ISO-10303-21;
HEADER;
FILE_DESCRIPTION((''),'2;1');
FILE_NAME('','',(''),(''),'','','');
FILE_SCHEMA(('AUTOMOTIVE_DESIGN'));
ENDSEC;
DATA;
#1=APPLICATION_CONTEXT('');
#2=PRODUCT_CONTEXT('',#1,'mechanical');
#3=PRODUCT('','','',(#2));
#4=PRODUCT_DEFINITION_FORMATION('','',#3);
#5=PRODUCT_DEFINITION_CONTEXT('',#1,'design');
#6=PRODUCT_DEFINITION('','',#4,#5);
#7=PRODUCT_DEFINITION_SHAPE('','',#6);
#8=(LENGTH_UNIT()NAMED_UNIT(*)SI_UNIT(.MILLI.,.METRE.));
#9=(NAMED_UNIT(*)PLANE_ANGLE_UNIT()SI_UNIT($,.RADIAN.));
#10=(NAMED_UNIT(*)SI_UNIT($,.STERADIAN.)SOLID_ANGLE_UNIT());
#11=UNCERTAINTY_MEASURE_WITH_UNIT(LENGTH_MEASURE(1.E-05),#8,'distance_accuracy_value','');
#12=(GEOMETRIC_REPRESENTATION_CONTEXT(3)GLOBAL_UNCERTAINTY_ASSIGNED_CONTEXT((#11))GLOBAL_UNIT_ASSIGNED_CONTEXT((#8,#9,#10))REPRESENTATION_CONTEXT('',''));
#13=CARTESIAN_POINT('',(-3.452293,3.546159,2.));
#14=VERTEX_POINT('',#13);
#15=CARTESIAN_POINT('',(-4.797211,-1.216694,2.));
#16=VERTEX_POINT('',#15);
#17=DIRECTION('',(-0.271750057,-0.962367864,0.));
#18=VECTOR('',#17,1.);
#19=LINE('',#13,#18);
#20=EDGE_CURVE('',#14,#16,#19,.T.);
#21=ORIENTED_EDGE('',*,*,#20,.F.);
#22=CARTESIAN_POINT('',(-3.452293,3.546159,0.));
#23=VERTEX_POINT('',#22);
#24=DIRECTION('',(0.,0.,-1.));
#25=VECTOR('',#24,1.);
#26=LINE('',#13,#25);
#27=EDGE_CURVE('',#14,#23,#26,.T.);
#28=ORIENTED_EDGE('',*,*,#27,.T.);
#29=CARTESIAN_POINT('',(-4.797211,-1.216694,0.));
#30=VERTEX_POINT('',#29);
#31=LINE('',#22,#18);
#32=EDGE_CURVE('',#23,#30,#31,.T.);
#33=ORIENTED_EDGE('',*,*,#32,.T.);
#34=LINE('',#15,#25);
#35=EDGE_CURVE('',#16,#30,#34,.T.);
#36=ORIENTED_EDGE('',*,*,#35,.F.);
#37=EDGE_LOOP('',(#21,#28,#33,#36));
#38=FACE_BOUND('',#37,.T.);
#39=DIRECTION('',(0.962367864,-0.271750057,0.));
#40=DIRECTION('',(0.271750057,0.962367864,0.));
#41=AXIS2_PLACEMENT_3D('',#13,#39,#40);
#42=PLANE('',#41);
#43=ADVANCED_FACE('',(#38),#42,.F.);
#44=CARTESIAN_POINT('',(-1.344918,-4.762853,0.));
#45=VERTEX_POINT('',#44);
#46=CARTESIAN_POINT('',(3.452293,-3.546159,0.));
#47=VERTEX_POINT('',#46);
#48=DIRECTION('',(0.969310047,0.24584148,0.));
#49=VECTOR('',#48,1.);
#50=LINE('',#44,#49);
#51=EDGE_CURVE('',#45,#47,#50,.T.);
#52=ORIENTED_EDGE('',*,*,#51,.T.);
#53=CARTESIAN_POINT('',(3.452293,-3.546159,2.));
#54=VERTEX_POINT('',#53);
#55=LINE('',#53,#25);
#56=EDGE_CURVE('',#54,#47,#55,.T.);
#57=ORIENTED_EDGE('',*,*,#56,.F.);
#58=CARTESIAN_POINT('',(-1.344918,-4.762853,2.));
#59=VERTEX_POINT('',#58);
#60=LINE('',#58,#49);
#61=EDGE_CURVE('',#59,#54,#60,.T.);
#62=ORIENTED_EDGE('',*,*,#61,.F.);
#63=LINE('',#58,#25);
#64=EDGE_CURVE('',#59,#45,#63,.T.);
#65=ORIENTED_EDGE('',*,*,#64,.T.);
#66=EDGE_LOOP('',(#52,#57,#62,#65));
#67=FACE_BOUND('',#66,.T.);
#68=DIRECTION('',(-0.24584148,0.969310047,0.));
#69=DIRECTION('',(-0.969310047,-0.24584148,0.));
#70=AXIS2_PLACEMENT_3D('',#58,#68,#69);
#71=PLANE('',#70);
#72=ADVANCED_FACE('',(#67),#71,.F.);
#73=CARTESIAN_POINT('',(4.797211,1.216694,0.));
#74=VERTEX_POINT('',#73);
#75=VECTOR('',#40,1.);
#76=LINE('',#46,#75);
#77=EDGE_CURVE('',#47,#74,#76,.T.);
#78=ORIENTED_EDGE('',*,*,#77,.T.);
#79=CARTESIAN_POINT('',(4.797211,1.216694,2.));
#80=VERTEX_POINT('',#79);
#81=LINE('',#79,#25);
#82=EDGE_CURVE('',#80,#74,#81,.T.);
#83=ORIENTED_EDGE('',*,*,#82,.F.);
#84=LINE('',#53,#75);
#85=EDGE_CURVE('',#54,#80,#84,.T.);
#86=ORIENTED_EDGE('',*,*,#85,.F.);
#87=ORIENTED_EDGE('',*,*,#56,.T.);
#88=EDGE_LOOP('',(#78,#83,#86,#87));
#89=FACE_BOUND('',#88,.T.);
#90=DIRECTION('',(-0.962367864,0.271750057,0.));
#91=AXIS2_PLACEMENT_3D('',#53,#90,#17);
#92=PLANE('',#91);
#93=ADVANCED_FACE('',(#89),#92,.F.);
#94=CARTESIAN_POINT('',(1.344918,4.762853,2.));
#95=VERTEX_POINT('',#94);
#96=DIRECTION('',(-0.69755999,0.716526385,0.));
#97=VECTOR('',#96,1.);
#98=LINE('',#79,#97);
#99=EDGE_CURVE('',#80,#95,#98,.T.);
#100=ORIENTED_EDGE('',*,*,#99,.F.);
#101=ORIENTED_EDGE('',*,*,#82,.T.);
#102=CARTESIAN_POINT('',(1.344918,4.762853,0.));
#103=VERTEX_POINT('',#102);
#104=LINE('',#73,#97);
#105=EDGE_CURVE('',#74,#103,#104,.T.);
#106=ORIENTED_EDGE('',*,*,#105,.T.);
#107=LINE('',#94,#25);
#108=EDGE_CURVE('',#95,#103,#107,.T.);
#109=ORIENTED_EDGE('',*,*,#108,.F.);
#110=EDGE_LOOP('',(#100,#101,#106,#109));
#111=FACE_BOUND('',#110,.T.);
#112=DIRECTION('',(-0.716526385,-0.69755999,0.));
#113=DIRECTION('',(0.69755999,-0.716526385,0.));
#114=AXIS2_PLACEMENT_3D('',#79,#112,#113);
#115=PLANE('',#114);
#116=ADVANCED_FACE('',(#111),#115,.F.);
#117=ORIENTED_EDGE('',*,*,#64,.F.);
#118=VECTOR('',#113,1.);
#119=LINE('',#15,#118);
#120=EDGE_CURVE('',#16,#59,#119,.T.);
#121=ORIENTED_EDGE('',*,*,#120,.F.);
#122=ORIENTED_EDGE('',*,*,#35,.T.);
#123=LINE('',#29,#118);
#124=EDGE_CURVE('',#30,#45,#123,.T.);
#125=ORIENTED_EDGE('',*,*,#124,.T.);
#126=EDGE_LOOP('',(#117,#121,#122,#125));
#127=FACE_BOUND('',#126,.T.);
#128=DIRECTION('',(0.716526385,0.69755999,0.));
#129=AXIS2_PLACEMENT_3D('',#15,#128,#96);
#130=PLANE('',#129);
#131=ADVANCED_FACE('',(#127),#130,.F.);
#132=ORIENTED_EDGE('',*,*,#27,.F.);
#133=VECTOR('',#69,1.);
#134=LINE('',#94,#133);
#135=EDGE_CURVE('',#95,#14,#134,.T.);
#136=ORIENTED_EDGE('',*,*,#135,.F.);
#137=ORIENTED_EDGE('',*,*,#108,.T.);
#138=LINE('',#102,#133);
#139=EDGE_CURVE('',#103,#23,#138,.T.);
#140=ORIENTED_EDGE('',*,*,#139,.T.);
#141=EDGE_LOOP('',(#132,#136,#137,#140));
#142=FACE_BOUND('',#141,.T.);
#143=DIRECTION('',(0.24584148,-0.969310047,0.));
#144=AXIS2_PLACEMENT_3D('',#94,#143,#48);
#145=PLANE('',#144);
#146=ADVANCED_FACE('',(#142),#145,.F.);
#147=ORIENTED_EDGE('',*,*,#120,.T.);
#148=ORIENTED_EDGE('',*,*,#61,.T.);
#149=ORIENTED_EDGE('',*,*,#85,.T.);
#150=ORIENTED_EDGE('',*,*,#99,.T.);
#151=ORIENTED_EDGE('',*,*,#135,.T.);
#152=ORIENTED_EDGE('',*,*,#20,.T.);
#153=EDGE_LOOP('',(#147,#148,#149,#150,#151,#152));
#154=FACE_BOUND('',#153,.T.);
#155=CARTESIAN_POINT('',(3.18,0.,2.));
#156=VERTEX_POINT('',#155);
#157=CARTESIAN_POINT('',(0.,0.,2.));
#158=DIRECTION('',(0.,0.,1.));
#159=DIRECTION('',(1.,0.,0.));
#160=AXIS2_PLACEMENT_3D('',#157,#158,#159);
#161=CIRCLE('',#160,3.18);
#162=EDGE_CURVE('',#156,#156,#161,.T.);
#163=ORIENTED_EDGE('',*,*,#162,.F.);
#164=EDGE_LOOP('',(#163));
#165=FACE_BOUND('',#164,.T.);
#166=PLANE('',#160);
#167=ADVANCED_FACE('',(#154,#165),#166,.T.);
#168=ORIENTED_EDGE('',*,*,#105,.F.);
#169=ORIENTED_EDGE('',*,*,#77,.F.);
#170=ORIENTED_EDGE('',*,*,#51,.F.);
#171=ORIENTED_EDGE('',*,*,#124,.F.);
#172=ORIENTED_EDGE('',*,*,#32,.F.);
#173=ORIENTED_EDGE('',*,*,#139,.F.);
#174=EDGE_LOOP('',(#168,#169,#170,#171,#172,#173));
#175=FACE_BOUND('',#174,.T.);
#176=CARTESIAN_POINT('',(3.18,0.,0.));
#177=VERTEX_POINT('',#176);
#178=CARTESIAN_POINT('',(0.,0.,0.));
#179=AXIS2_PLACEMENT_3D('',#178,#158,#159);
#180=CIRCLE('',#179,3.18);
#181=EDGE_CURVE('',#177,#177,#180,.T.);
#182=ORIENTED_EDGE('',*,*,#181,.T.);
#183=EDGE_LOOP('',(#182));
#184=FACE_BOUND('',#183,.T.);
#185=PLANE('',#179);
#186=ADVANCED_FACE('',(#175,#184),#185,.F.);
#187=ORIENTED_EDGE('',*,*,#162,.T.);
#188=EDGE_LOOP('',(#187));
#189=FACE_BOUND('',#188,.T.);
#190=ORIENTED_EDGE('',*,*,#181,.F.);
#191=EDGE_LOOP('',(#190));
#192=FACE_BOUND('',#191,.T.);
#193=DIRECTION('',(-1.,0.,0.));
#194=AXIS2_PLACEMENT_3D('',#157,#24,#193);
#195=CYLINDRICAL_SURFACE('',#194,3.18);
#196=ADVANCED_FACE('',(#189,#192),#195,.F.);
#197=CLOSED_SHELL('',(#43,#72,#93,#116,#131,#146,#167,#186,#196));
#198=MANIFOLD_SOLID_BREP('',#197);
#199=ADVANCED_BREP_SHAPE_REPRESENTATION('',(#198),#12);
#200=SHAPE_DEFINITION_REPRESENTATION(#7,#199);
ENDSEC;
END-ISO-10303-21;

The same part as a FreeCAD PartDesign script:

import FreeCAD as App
import Part
import Sketcher

V = App.Vector

doc = App.newDocument("Part")
body = doc.addObject("PartDesign::Body", "Body")

# Sketch on XY plane
sketch1 = body.newObject("Sketcher::SketchObject", "Sketch")
sketch1.AttachmentSupport = (doc.getObject("XY_Plane"), [""])
sketch1.MapMode = "FlatFace"
sketch1.addGeometry([
    Part.LineSegment(V(-1.344918, -4.762853, 0), V(3.452293, -3.546159, 0)),  # 0
    Part.LineSegment(V(3.452293, -3.546159, 0), V(4.797211, 1.216694, 0)),  # 1
    Part.LineSegment(V(4.797211, 1.216694, 0), V(1.344918, 4.762853, 0)),  # 2
    Part.LineSegment(V(1.344918, 4.762853, 0), V(-3.452293, 3.546159, 0)),  # 3
    Part.LineSegment(V(-3.452293, 3.546159, 0), V(-4.797211, -1.216694, 0)),  # 4
    Part.LineSegment(V(-4.797211, -1.216694, 0), V(-1.344918, -4.762853, 0)),  # 5
    Part.Circle(V(0, 0, 0), V(0, 0, 1), 3.18),  # 6
], False)
sketch1.addConstraint([
    Sketcher.Constraint("Coincident", 0, 2, 1, 1),
    Sketcher.Constraint("Coincident", 1, 2, 2, 1),
    Sketcher.Constraint("Coincident", 2, 2, 3, 1),
    Sketcher.Constraint("Coincident", 3, 2, 4, 1),
    Sketcher.Constraint("Coincident", 4, 2, 5, 1),
    Sketcher.Constraint("Coincident", 5, 2, 0, 1),
    Sketcher.Constraint("Coincident", 6, 3, -1, 1),
    Sketcher.Constraint("Symmetric", 0, 2, 3, 2, -1, 1),
    Sketcher.Constraint("Symmetric", 1, 2, 4, 2, -1, 1),
    Sketcher.Constraint("Symmetric", 2, 2, 5, 2, -1, 1),
    Sketcher.Constraint("Equal", 0, 1),
    Sketcher.Constraint("Equal", 1, 2),
    Sketcher.Constraint("Diameter", 6, 6.36),
    Sketcher.Constraint("Distance", 0, 4.949098),
    Sketcher.Constraint("DistanceY", 0, 2, -1, 1, 3.546159),
    Sketcher.Constraint("DistanceX", -1, 1, 1, 2, 4.797211),
    Sketcher.Constraint("DistanceY", 1, 2, 2, 2, 3.546159),
])
pad1 = body.newObject("PartDesign::Pad", "Pad")
pad1.Profile = sketch1
pad1.Length = 2

doc.recompute()
